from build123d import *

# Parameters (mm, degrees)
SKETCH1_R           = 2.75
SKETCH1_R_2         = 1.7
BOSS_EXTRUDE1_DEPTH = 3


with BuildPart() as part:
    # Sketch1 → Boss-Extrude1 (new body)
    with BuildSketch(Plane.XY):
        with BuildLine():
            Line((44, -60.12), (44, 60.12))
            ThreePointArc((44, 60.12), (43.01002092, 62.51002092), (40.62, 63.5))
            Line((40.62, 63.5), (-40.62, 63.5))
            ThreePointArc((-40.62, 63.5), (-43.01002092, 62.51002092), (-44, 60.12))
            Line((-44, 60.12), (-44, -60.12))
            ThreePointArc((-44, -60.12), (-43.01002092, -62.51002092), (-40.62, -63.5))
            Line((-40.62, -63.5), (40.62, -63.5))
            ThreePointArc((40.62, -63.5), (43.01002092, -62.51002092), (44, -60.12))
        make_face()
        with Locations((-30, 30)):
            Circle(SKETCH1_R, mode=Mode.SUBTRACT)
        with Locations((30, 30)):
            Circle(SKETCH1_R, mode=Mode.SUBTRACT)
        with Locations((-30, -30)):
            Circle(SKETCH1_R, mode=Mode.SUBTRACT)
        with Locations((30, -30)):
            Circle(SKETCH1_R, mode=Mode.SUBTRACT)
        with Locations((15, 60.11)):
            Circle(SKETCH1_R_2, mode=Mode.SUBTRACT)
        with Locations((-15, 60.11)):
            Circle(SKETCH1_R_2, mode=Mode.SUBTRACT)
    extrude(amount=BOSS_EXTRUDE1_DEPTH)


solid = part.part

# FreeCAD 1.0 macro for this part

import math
import FreeCAD as App
import Part
import Sketcher

V = App.Vector
Q = App.Units.Quantity

doc = App.newDocument("Part")
body = doc.addObject("PartDesign::Body", "Body")

# Sketch on XY plane
sketch1 = body.newObject("Sketcher::SketchObject", "Sketch")
sketch1.AttachmentSupport = (doc.getObject("XY_Plane"), [""])
sketch1.MapMode = "FlatFace"
sketch1.addGeometry([
    Part.LineSegment(V(44, -60.1, 0), V(44, 60.1, 0)),  # 0
    Part.ArcOfCircle(Part.Circle(V(40.6, 60.1, 0), V(0, 0, 1), 3.4), math.radians(0), math.radians(90)),  # 1
    Part.LineSegment(V(40.6, 63.5, 0), V(-40.6, 63.5, 0)),  # 2
    Part.ArcOfCircle(Part.Circle(V(-40.6, 60.1, 0), V(0, 0, 1), 3.4), math.radians(90), math.radians(180)),  # 3
    Part.LineSegment(V(-44, 60.1, 0), V(-44, -60.1, 0)),  # 4
    Part.ArcOfCircle(Part.Circle(V(-40.6, -60.1, 0), V(0, 0, 1), 3.4), math.radians(-180), math.radians(-90)),  # 5
    Part.LineSegment(V(-40.6, -63.5, 0), V(40.6, -63.5, 0)),  # 6
    Part.ArcOfCircle(Part.Circle(V(40.6, -60.1, 0), V(0, 0, 1), 3.4), math.radians(-90), math.radians(0)),  # 7
    Part.Circle(V(-30, -30, 0), V(0, 0, 1), 2.8),  # 8
    Part.Circle(V(30, -30, 0), V(0, 0, 1), 2.8),  # 9
    Part.Circle(V(-30, 30, 0), V(0, 0, 1), 2.8),  # 10
    Part.Circle(V(-15, 60.1, 0), V(0, 0, 1), 1.7),  # 11
    Part.Circle(V(30, 30, 0), V(0, 0, 1), 2.8),  # 12
    Part.Circle(V(15, 60.1, 0), V(0, 0, 1), 1.7),  # 13
], False)
sketch1.addConstraint([
    Sketcher.Constraint("Tangent", 0, 2, 1, 1),
    Sketcher.Constraint("Tangent", 1, 2, 2, 1),
    Sketcher.Constraint("Tangent", 2, 2, 3, 1),
    Sketcher.Constraint("Tangent", 3, 2, 4, 1),
    Sketcher.Constraint("Tangent", 4, 2, 5, 1),
    Sketcher.Constraint("Tangent", 5, 2, 6, 1),
    Sketcher.Constraint("Tangent", 6, 2, 7, 1),
    Sketcher.Constraint("Tangent", 7, 2, 0, 1),
    Sketcher.Constraint("Vertical", 0),
    Sketcher.Constraint("Horizontal", 2),
    Sketcher.Constraint("Vertical", 4),
    Sketcher.Constraint("Horizontal", 6),
    Sketcher.Constraint("Equal", 1, 3),
    Sketcher.Constraint("Equal", 3, 5),
    Sketcher.Constraint("Equal", 5, 7),
    Sketcher.Constraint("Equal", 8, 9),
    Sketcher.Constraint("Equal", 9, 10),
    Sketcher.Constraint("Equal", 10, 12),
    Sketcher.Constraint("Equal", 11, 13),
    Sketcher.Constraint("Symmetric", 1, 3, 5, 3, -1, 1),
    Sketcher.Constraint("Symmetric", 9, 3, 10, 3, -1, 1),
    Sketcher.Constraint("Symmetric", 8, 3, 12, 3, -1, 1),
    Sketcher.Constraint("Symmetric", 8, 3, 9, 3, -2),
    Sketcher.Constraint("Symmetric", 11, 3, 13, 3, -2),
    Sketcher.Constraint("Diameter", 8, Q("5.5 mm")),
    Sketcher.Constraint("Diameter", 11, Q("3.4 mm")),
    Sketcher.Constraint("Radius", 1, Q("3.38 mm")),
    Sketcher.Constraint("DistanceX", 8, 3, -1, 1, Q("30 mm")),
    Sketcher.Constraint("DistanceY", 8, 3, -1, 1, Q("30 mm")),
    Sketcher.Constraint("DistanceX", 11, 3, -1, 1, Q("15 mm")),
    Sketcher.Constraint("DistanceX", -1, 1, 0, 2, Q("44 mm")),
    Sketcher.Constraint("DistanceY", 0, 1, 0, 2, Q("120.24 mm")),
    Sketcher.Constraint("DistanceY", -1, 1, 11, 3, Q("60.11 mm")),
])
pad1 = body.newObject("PartDesign::Pad", "Pad")
pad1.Profile = sketch1
pad1.Length = 3

doc.recompute()
